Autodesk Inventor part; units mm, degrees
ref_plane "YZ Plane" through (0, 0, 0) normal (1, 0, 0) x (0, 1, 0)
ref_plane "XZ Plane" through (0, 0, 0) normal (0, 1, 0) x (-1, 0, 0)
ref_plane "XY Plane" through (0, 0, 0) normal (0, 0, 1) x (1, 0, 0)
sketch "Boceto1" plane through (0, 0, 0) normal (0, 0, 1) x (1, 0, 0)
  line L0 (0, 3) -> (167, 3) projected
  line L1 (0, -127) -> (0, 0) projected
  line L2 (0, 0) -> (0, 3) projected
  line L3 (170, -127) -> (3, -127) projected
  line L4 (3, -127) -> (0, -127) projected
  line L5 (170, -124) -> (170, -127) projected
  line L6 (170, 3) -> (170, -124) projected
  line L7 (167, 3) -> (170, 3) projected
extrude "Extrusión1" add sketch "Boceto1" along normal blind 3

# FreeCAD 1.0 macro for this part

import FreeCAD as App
import Part
import Sketcher
from FreeCAD import Vector
Q = App.Units.Quantity


def add_polygon(sketch, points):
    """Adds a closed chain of lines whose ends are joined by coincident constraints."""
    first, n = sketch.GeometryCount, len(points)
    for a, b in zip(points, points[1:] + points[:1]):
        sketch.addGeometry(Part.LineSegment(App.Vector(*a, 0), App.Vector(*b, 0)), False)
    for i in range(n):
        sketch.addConstraint(Sketcher.Constraint("Coincident", first + i, 2, first + (i + 1) % n, 1))

doc = App.newDocument("Part")
body = doc.addObject("PartDesign::Body", "Body")

# Sketch on XY plane
sketch1 = body.newObject("Sketcher::SketchObject", "Sketch")
sketch1.AttachmentSupport = (doc.getObject("XY_Plane"), [""])
sketch1.MapMode = "FlatFace"
add_polygon(sketch1, [(170, 3), (0, 3), (0, -127), (170, -127)])  # lines 0-3
sketch1.addConstraint([
    Sketcher.Constraint("Horizontal", 0),
    Sketcher.Constraint("Vertical", 1),
    Sketcher.Constraint("Horizontal", 2),
    Sketcher.Constraint("Vertical", 3),
    Sketcher.Constraint("PointOnObject", 0, 2, -2),
    Sketcher.Constraint("DistanceX", 0, 2, 0, 1, Q("170 mm")),
    Sketcher.Constraint("DistanceY", 1, 2, 1, 1, Q("130 mm")),
    Sketcher.Constraint("DistanceY", -1, 1, 0, 2, Q("3 mm")),
])
pad1 = body.newObject("PartDesign::Pad", "Pad")
pad1.Profile = sketch1
pad1.Length = 3

doc.recompute()
